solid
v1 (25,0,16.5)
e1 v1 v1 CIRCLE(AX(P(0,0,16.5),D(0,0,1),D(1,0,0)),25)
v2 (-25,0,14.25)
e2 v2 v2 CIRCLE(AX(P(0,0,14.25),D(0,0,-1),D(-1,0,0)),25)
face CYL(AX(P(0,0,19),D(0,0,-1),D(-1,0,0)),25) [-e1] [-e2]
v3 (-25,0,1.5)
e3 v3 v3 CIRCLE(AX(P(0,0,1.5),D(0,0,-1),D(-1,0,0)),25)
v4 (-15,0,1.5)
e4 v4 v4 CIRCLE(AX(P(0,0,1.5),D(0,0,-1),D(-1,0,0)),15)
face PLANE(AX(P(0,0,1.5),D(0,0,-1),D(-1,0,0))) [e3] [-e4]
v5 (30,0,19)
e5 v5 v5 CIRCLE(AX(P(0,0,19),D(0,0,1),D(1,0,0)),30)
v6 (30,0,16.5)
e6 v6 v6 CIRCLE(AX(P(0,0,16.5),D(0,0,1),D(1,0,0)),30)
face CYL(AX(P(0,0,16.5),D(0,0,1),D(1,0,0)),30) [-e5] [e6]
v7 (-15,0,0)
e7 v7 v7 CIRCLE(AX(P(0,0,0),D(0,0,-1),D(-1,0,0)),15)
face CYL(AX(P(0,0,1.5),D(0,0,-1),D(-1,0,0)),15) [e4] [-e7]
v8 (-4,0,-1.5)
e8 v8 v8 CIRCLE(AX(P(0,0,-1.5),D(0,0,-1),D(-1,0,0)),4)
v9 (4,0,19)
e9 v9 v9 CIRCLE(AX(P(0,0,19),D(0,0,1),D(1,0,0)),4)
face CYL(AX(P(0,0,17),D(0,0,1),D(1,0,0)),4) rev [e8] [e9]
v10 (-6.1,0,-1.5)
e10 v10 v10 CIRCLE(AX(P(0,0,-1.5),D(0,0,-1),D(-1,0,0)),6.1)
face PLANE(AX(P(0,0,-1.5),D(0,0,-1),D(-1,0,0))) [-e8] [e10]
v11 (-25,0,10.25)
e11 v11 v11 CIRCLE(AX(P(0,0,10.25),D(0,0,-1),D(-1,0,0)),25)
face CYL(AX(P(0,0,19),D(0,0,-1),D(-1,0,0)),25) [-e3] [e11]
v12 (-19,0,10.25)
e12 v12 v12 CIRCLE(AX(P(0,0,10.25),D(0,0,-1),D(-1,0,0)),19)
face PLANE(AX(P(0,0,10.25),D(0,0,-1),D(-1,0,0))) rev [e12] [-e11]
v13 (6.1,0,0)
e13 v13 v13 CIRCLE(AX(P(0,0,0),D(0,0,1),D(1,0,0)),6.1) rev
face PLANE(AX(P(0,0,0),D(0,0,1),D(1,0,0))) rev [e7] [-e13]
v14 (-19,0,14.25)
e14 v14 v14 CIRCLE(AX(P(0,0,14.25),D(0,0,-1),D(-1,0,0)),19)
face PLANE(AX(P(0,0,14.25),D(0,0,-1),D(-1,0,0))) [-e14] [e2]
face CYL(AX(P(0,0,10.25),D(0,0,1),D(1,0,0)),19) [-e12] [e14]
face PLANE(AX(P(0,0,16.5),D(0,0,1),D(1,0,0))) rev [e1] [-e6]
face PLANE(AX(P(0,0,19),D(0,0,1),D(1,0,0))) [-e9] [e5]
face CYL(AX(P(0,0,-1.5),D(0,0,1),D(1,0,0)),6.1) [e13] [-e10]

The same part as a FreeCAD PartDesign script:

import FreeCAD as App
import Part
import Sketcher

V = App.Vector

doc = App.newDocument("Part")
body = doc.addObject("PartDesign::Body", "Body")

# Sketch on XY plane
sketch1 = body.newObject("Sketcher::SketchObject", "Sketch")
sketch1.AttachmentSupport = (doc.getObject("XY_Plane"), [""])
sketch1.MapMode = "FlatFace"
sketch1.addGeometry([
    Part.Circle(V(0, 0, 0), V(0, 0, 1), 25),
    Part.Circle(V(0, 0, 0), V(0, 0, 1), 11),
], False)
sketch1.addConstraint([
    Sketcher.Constraint("Coincident", 0, 3, -1, 1),
    Sketcher.Constraint("Coincident", 1, 3, -1, 1),
    Sketcher.Constraint("Diameter", 0, 50.0),
    Sketcher.Constraint("Diameter", 1, 22.0),
])
pad1 = body.newObject("PartDesign::Pad", "Pad")
pad1.Profile = sketch1
pad1.Length = 19

# Sketch on XY plane
sketch2 = body.newObject("Sketcher::SketchObject", "Sketch001")
sketch2.AttachmentSupport = (doc.getObject("XY_Plane"), [""])
sketch2.MapMode = "FlatFace"
sketch2.AttachmentOffset = App.Placement(V(0, 0, 6), App.Rotation())
sketch2.addGeometry([
    Part.Circle(V(0, 0, 0), V(0, 0, 1), 11),
    Part.Circle(V(0, 0, 0), V(0, 0, 1), 9.5),
], False)
sketch2.addConstraint([
    Sketcher.Constraint("Coincident", 0, 3, -1, 1),
    Sketcher.Constraint("Coincident", 1, 3, -1, 1),
    Sketcher.Constraint("Diameter", 0, 22.0),
    Sketcher.Constraint("Diameter", 1, 19.0),
])
pad2 = body.newObject("PartDesign::Pad", "Pad001")
pad2.Profile = sketch2
pad2.Length = 13

# Sketch on XY plane
sketch3 = body.newObject("Sketcher::SketchObject", "Sketch002")
sketch3.AttachmentSupport = (doc.getObject("XY_Plane"), [""])
sketch3.MapMode = "FlatFace"
sketch3.AttachmentOffset = App.Placement(V(0, 0, 17), App.Rotation())
sketch3.addGeometry([
    Part.Circle(V(0, 0, 0), V(0, 0, 1), 11),
    Part.Circle(V(0, 0, 0), V(0, 0, 1), 4),
], False)
sketch3.addConstraint([
    Sketcher.Constraint("Coincident", 0, 3, -1, 1),
    Sketcher.Constraint("Coincident", 1, 3, -1, 1),
    Sketcher.Constraint("Diameter", 0, 22.0),
    Sketcher.Constraint("Diameter", 1, 8.0),
])
pad3 = body.newObject("PartDesign::Pad", "Pad002")
pad3.Profile = sketch3
pad3.Length = 2

# Sketch on XY plane
sketch4 = body.newObject("Sketcher::SketchObject", "Sketch003")
sketch4.AttachmentSupport = (doc.getObject("XY_Plane"), [""])
sketch4.MapMode = "FlatFace"
sketch4.AttachmentOffset = App.Placement(V(0, 0, 16.5), App.Rotation())
sketch4.addGeometry([
    Part.Circle(V(0, 0, 0), V(0, 0, 1), 30),
    Part.Circle(V(0, 0, 0), V(0, 0, 1), 25),
], False)
sketch4.addConstraint([
    Sketcher.Constraint("Coincident", 0, 3, -1, 1),
    Sketcher.Constraint("Coincident", 1, 3, -1, 1),
    Sketcher.Constraint("Diameter", 0, 60.0),
    Sketcher.Constraint("Diameter", 1, 50.0),
])
pad4 = body.newObject("PartDesign::Pad", "Pad003")
pad4.Profile = sketch4
pad4.Length = 2.5

# Sketch on XY plane
sketch5 = body.newObject("Sketcher::SketchObject", "Sketch004")
sketch5.AttachmentSupport = (doc.getObject("XY_Plane"), [""])
sketch5.MapMode = "FlatFace"
sketch5.AttachmentOffset = App.Placement(V(0, 0, 10.25), App.Rotation())
sketch5.addGeometry([
    Part.Circle(V(0, 0, 0), V(0, 0, 1), 25),
    Part.Circle(V(0, 0, 0), V(0, 0, 1), 19),
], False)
sketch5.addConstraint([
    Sketcher.Constraint("Coincident", 0, 3, -1, 1),
    Sketcher.Constraint("Coincident", 1, 3, -1, 1),
    Sketcher.Constraint("Diameter", 0, 50.0),
    Sketcher.Constraint("Diameter", 1, 38.0),
])
pocket1 = body.newObject("PartDesign::Pocket", "Pocket")
pocket1.Profile = sketch5
pocket1.Length = 4
pocket1.Reversed = True

# Sketch on XY plane
sketch6 = body.newObject("Sketcher::SketchObject", "Sketch005")
sketch6.AttachmentSupport = (doc.getObject("XY_Plane"), [""])
sketch6.MapMode = "FlatFace"
sketch6.addGeometry([
    Part.Circle(V(0, 0, 0), V(0, 0, 1), 11),
    Part.Circle(V(0, 0, 0), V(0, 0, 1), 4),
], False)
sketch6.addConstraint([
    Sketcher.Constraint("Coincident", 0, 3, -1, 1),
    Sketcher.Constraint("Coincident", 1, 3, -1, 1),
    Sketcher.Constraint("Diameter", 0, 22.0),
    Sketcher.Constraint("Diameter", 1, 8.0),
])
pad5 = body.newObject("PartDesign::Pad", "Pad004")
pad5.Profile = sketch6
pad5.Length = 17

# Sketch on XY plane
sketch7 = body.newObject("Sketcher::SketchObject", "Sketch006")
sketch7.AttachmentSupport = (doc.getObject("XY_Plane"), [""])
sketch7.MapMode = "FlatFace"
sketch7.AttachmentOffset = App.Placement(V(0, 0, -1.5), App.Rotation())
sketch7.addGeometry([
    Part.Circle(V(0, 0, 0), V(0, 0, 1), 6.1),
    Part.Circle(V(0, 0, 0), V(0, 0, 1), 4),
], False)
sketch7.addConstraint([
    Sketcher.Constraint("Coincident", 0, 3, -1, 1),
    Sketcher.Constraint("Coincident", 1, 3, -1, 1),
    Sketcher.Constraint("Diameter", 1, 8.0),
    Sketcher.Constraint("Diameter", 0, 12.2),
])
pad6 = body.newObject("PartDesign::Pad", "Pad005")
pad6.Profile = sketch7
pad6.Length = 1.5

# Sketch on XY plane
sketch8 = body.newObject("Sketcher::SketchObject", "Sketch007")
sketch8.AttachmentSupport = (doc.getObject("XY_Plane"), [""])
sketch8.MapMode = "FlatFace"
sketch8.addGeometry([
    Part.Circle(V(0, 0, 0), V(0, 0, 1), 25),
    Part.Circle(V(0, 0, 0), V(0, 0, 1), 15),
], False)
sketch8.addConstraint([
    Sketcher.Constraint("Coincident", 0, 3, -1, 1),
    Sketcher.Constraint("Coincident", 1, 3, -1, 1),
    Sketcher.Constraint("Diameter", 0, 50.0),
    Sketcher.Constraint("Diameter", 1, 30.0),
])
pocket2 = body.newObject("PartDesign::Pocket", "Pocket001")
pocket2.Profile = sketch8
pocket2.Length = 1.5
pocket2.Reversed = True

doc.recompute()
